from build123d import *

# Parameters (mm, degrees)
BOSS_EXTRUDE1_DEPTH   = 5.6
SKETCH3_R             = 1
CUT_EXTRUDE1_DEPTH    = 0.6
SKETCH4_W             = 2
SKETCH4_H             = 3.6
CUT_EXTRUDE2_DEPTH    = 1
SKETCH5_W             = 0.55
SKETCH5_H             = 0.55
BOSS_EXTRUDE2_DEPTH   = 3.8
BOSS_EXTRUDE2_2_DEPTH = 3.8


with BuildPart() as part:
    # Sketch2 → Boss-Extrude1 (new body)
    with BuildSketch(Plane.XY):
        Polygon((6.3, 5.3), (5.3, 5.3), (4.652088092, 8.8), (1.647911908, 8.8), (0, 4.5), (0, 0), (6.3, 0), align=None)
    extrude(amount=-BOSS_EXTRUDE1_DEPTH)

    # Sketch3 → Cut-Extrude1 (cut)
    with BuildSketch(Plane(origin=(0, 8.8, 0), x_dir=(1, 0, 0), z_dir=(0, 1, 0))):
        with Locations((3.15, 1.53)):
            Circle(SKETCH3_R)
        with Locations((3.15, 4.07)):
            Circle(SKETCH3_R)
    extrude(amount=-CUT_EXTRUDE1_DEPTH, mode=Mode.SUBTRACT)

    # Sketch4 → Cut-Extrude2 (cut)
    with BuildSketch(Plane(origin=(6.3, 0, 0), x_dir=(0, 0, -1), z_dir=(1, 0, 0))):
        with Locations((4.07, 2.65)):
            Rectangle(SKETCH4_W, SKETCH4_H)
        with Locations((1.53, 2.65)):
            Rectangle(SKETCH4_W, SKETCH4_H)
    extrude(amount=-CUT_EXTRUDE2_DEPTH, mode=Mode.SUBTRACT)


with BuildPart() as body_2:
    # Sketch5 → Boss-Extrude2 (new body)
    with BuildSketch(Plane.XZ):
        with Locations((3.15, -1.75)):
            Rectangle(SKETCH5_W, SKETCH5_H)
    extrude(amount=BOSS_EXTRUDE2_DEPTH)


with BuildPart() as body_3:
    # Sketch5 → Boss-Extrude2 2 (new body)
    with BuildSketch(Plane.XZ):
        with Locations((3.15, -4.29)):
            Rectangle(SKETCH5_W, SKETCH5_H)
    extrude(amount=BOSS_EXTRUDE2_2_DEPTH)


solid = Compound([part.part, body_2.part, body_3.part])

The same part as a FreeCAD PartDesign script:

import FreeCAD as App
import Part
import Sketcher


def add_polygon(sketch, points):
    """Adds a closed chain of lines whose ends are joined by coincident constraints."""
    first, n = sketch.GeometryCount, len(points)
    for a, b in zip(points, points[1:] + points[:1]):
        sketch.addGeometry(Part.LineSegment(App.Vector(*a, 0), App.Vector(*b, 0)), False)
    for i in range(n):
        sketch.addConstraint(Sketcher.Constraint("Coincident", first + i, 2, first + (i + 1) % n, 1))

doc = App.newDocument("Part")
body = doc.addObject("PartDesign::Body", "Body")

# Sketch on XY plane
sketch1 = body.newObject("Sketcher::SketchObject", "Sketch")
sketch1.AttachmentSupport = (doc.getObject("XY_Plane"), [""])
sketch1.MapMode = "FlatFace"
add_polygon(sketch1, [(6.3, 5.3), (5.3, 5.3), (4.7, 8.8), (1.6, 8.8), (0, 4.5), (0, 0), (6.3, 0)])  # lines 0-6
sketch1.addConstraint([
    Sketcher.Constraint("Horizontal", 0),
    Sketcher.Constraint("Horizontal", 2),
    Sketcher.Constraint("Vertical", 4),
    Sketcher.Constraint("Horizontal", 5),
    Sketcher.Constraint("Vertical", 6),
    Sketcher.Constraint("Coincident", 4, 2, -1, 1),
    Sketcher.Constraint("DistanceX", 0, 2, 0, 1, 1.0),
    Sketcher.Constraint("DistanceX", 5, 1, 5, 2, 6.3),
    Sketcher.Constraint("DistanceY", 4, 2, 4, 1, 4.5),
    Sketcher.Constraint("DistanceY", 6, 1, 6, 2, 5.3),
    Sketcher.Constraint("DistanceY", -1, 1, 1, 2, 8.8),
    Sketcher.Constraint("DistanceX", 2, 2, 2, 1, 3.004176),
    Sketcher.Constraint("DistanceX", -1, 1, 1, 2, 4.652088),
])
pad1 = body.newObject("PartDesign::Pad", "Pad")
pad1.Profile = sketch1
pad1.Length = 5.6
pad1.Reversed = True

# Sketch on XZ plane
sketch2 = body.newObject("Sketcher::SketchObject", "Sketch001")
sketch2.AttachmentSupport = (doc.getObject("XZ_Plane"), [""])
sketch2.MapMode = "FlatFace"
sketch2.AttachmentOffset = App.Placement(App.Vector(0, 0, -8.8), App.Rotation())
sketch2.addGeometry([
    Part.Circle(App.Vector(3.1, -1.5, 0), App.Vector(0, 0, 1), 1),
    Part.Circle(App.Vector(3.1, -4.1, 0), App.Vector(0, 0, 1), 1),
], False)
sketch2.addConstraint([
    Sketcher.Constraint("Equal", 0, 1),
    Sketcher.Constraint("Vertical", 0, 3, 1, 3),
    Sketcher.Constraint("Diameter", 0, 2.0),
    Sketcher.Constraint("DistanceX", -1, 1, 0, 3, 3.15),
    Sketcher.Constraint("DistanceY", 0, 3, -1, 1, 1.53),
    Sketcher.Constraint("DistanceY", 1, 3, -1, 1, 4.07),
])
pocket1 = body.newObject("PartDesign::Pocket", "Pocket")
pocket1.Profile = sketch2
pocket1.Length = 0.6
pocket1.Reversed = True

# Sketch on YZ plane
sketch3 = body.newObject("Sketcher::SketchObject", "Sketch002")
sketch3.AttachmentSupport = (doc.getObject("YZ_Plane"), [""])
sketch3.MapMode = "FlatFace"
sketch3.AttachmentOffset = App.Placement(App.Vector(0, 0, 6.3), App.Rotation())
add_polygon(sketch3, [(4.5, -3.1), (0.8, -3.1), (0.8, -5.1), (4.5, -5.1)])  # lines 0-3
add_polygon(sketch3, [(4.5, -0.5), (0.8, -0.5), (0.8, -2.5), (4.5, -2.5)])  # lines 4-7
sketch3.addConstraint([
    Sketcher.Constraint("Horizontal", 0),
    Sketcher.Constraint("Vertical", 1),
    Sketcher.Constraint("Horizontal", 2),
    Sketcher.Constraint("Vertical", 3),
    Sketcher.Constraint("Horizontal", 4),
    Sketcher.Constraint("Vertical", 5),
    Sketcher.Constraint("Horizontal", 6),
    Sketcher.Constraint("Vertical", 7),
    Sketcher.Constraint("Vertical", 1, 2, 4, 2),
    Sketcher.Constraint("Vertical", 3, 2, 6, 2),
    Sketcher.Constraint("Equal", 3, 5),
    Sketcher.Constraint("DistanceY", 1, 2, 1, 1, 2.0),
    Sketcher.Constraint("DistanceX", 0, 2, 0, 1, 3.6),
    Sketcher.Constraint("DistanceX", -1, 1, 0, 2, 0.85),
    Sketcher.Constraint("DistanceY", 0, 2, -1, 1, 3.07),
    Sketcher.Constraint("DistanceY", 4, 2, -1, 1, 0.53),
])
pocket2 = body.newObject("PartDesign::Pocket", "Pocket001")
pocket2.Profile = sketch3
pocket2.Length = 1
body2 = doc.addObject("PartDesign::Body", "Body001")

# Sketch on XZ plane
sketch4 = body2.newObject("Sketcher::SketchObject", "Sketch003")
sketch4.AttachmentSupport = (doc.getObject("XZ_Plane001"), [""])
sketch4.MapMode = "FlatFace"
add_polygon(sketch4, [(2.9, -1.5), (2.9, -2), (3.4, -2), (3.4, -1.5)])  # lines 0-3
sketch4.addConstraint([
    Sketcher.Constraint("Vertical", 0),
    Sketcher.Constraint("Horizontal", 1),
    Sketcher.Constraint("Vertical", 2),
    Sketcher.Constraint("Horizontal", 3),
    Sketcher.Constraint("Equal", 3, 0),
    Sketcher.Constraint("DistanceX", 1, 1, 1, 2, 0.55),
    Sketcher.Constraint("DistanceX", -1, 1, 0, 2, 2.875),
    Sketcher.Constraint("DistanceY", 0, 2, -1, 1, 2.025),
])
pad2 = body2.newObject("PartDesign::Pad", "Pad001")
pad2.Profile = sketch4
pad2.Length = 3.8
body3 = doc.addObject("PartDesign::Body", "Body002")

# Sketch on XZ plane
sketch5 = body3.newObject("Sketcher::SketchObject", "Sketch004")
sketch5.AttachmentSupport = (doc.getObject("XZ_Plane002"), [""])
sketch5.MapMode = "FlatFace"
add_polygon(sketch5, [(2.9, -4), (2.9, -4.6), (3.4, -4.6), (3.4, -4)])  # lines 0-3
sketch5.addConstraint([
    Sketcher.Constraint("Vertical", 0),
    Sketcher.Constraint("Horizontal", 1),
    Sketcher.Constraint("Vertical", 2),
    Sketcher.Constraint("Horizontal", 3),
    Sketcher.Constraint("Equal", 3, 0),
    Sketcher.Constraint("DistanceX", 1, 1, 1, 2, 0.55),
    Sketcher.Constraint("DistanceX", -1, 1, 0, 2, 2.875),
    Sketcher.Constraint("DistanceY", 0, 2, -1, 1, 4.565),
])
pad3 = body3.newObject("PartDesign::Pad", "Pad002")
pad3.Profile = sketch5
pad3.Length = 3.8

doc.recompute()
